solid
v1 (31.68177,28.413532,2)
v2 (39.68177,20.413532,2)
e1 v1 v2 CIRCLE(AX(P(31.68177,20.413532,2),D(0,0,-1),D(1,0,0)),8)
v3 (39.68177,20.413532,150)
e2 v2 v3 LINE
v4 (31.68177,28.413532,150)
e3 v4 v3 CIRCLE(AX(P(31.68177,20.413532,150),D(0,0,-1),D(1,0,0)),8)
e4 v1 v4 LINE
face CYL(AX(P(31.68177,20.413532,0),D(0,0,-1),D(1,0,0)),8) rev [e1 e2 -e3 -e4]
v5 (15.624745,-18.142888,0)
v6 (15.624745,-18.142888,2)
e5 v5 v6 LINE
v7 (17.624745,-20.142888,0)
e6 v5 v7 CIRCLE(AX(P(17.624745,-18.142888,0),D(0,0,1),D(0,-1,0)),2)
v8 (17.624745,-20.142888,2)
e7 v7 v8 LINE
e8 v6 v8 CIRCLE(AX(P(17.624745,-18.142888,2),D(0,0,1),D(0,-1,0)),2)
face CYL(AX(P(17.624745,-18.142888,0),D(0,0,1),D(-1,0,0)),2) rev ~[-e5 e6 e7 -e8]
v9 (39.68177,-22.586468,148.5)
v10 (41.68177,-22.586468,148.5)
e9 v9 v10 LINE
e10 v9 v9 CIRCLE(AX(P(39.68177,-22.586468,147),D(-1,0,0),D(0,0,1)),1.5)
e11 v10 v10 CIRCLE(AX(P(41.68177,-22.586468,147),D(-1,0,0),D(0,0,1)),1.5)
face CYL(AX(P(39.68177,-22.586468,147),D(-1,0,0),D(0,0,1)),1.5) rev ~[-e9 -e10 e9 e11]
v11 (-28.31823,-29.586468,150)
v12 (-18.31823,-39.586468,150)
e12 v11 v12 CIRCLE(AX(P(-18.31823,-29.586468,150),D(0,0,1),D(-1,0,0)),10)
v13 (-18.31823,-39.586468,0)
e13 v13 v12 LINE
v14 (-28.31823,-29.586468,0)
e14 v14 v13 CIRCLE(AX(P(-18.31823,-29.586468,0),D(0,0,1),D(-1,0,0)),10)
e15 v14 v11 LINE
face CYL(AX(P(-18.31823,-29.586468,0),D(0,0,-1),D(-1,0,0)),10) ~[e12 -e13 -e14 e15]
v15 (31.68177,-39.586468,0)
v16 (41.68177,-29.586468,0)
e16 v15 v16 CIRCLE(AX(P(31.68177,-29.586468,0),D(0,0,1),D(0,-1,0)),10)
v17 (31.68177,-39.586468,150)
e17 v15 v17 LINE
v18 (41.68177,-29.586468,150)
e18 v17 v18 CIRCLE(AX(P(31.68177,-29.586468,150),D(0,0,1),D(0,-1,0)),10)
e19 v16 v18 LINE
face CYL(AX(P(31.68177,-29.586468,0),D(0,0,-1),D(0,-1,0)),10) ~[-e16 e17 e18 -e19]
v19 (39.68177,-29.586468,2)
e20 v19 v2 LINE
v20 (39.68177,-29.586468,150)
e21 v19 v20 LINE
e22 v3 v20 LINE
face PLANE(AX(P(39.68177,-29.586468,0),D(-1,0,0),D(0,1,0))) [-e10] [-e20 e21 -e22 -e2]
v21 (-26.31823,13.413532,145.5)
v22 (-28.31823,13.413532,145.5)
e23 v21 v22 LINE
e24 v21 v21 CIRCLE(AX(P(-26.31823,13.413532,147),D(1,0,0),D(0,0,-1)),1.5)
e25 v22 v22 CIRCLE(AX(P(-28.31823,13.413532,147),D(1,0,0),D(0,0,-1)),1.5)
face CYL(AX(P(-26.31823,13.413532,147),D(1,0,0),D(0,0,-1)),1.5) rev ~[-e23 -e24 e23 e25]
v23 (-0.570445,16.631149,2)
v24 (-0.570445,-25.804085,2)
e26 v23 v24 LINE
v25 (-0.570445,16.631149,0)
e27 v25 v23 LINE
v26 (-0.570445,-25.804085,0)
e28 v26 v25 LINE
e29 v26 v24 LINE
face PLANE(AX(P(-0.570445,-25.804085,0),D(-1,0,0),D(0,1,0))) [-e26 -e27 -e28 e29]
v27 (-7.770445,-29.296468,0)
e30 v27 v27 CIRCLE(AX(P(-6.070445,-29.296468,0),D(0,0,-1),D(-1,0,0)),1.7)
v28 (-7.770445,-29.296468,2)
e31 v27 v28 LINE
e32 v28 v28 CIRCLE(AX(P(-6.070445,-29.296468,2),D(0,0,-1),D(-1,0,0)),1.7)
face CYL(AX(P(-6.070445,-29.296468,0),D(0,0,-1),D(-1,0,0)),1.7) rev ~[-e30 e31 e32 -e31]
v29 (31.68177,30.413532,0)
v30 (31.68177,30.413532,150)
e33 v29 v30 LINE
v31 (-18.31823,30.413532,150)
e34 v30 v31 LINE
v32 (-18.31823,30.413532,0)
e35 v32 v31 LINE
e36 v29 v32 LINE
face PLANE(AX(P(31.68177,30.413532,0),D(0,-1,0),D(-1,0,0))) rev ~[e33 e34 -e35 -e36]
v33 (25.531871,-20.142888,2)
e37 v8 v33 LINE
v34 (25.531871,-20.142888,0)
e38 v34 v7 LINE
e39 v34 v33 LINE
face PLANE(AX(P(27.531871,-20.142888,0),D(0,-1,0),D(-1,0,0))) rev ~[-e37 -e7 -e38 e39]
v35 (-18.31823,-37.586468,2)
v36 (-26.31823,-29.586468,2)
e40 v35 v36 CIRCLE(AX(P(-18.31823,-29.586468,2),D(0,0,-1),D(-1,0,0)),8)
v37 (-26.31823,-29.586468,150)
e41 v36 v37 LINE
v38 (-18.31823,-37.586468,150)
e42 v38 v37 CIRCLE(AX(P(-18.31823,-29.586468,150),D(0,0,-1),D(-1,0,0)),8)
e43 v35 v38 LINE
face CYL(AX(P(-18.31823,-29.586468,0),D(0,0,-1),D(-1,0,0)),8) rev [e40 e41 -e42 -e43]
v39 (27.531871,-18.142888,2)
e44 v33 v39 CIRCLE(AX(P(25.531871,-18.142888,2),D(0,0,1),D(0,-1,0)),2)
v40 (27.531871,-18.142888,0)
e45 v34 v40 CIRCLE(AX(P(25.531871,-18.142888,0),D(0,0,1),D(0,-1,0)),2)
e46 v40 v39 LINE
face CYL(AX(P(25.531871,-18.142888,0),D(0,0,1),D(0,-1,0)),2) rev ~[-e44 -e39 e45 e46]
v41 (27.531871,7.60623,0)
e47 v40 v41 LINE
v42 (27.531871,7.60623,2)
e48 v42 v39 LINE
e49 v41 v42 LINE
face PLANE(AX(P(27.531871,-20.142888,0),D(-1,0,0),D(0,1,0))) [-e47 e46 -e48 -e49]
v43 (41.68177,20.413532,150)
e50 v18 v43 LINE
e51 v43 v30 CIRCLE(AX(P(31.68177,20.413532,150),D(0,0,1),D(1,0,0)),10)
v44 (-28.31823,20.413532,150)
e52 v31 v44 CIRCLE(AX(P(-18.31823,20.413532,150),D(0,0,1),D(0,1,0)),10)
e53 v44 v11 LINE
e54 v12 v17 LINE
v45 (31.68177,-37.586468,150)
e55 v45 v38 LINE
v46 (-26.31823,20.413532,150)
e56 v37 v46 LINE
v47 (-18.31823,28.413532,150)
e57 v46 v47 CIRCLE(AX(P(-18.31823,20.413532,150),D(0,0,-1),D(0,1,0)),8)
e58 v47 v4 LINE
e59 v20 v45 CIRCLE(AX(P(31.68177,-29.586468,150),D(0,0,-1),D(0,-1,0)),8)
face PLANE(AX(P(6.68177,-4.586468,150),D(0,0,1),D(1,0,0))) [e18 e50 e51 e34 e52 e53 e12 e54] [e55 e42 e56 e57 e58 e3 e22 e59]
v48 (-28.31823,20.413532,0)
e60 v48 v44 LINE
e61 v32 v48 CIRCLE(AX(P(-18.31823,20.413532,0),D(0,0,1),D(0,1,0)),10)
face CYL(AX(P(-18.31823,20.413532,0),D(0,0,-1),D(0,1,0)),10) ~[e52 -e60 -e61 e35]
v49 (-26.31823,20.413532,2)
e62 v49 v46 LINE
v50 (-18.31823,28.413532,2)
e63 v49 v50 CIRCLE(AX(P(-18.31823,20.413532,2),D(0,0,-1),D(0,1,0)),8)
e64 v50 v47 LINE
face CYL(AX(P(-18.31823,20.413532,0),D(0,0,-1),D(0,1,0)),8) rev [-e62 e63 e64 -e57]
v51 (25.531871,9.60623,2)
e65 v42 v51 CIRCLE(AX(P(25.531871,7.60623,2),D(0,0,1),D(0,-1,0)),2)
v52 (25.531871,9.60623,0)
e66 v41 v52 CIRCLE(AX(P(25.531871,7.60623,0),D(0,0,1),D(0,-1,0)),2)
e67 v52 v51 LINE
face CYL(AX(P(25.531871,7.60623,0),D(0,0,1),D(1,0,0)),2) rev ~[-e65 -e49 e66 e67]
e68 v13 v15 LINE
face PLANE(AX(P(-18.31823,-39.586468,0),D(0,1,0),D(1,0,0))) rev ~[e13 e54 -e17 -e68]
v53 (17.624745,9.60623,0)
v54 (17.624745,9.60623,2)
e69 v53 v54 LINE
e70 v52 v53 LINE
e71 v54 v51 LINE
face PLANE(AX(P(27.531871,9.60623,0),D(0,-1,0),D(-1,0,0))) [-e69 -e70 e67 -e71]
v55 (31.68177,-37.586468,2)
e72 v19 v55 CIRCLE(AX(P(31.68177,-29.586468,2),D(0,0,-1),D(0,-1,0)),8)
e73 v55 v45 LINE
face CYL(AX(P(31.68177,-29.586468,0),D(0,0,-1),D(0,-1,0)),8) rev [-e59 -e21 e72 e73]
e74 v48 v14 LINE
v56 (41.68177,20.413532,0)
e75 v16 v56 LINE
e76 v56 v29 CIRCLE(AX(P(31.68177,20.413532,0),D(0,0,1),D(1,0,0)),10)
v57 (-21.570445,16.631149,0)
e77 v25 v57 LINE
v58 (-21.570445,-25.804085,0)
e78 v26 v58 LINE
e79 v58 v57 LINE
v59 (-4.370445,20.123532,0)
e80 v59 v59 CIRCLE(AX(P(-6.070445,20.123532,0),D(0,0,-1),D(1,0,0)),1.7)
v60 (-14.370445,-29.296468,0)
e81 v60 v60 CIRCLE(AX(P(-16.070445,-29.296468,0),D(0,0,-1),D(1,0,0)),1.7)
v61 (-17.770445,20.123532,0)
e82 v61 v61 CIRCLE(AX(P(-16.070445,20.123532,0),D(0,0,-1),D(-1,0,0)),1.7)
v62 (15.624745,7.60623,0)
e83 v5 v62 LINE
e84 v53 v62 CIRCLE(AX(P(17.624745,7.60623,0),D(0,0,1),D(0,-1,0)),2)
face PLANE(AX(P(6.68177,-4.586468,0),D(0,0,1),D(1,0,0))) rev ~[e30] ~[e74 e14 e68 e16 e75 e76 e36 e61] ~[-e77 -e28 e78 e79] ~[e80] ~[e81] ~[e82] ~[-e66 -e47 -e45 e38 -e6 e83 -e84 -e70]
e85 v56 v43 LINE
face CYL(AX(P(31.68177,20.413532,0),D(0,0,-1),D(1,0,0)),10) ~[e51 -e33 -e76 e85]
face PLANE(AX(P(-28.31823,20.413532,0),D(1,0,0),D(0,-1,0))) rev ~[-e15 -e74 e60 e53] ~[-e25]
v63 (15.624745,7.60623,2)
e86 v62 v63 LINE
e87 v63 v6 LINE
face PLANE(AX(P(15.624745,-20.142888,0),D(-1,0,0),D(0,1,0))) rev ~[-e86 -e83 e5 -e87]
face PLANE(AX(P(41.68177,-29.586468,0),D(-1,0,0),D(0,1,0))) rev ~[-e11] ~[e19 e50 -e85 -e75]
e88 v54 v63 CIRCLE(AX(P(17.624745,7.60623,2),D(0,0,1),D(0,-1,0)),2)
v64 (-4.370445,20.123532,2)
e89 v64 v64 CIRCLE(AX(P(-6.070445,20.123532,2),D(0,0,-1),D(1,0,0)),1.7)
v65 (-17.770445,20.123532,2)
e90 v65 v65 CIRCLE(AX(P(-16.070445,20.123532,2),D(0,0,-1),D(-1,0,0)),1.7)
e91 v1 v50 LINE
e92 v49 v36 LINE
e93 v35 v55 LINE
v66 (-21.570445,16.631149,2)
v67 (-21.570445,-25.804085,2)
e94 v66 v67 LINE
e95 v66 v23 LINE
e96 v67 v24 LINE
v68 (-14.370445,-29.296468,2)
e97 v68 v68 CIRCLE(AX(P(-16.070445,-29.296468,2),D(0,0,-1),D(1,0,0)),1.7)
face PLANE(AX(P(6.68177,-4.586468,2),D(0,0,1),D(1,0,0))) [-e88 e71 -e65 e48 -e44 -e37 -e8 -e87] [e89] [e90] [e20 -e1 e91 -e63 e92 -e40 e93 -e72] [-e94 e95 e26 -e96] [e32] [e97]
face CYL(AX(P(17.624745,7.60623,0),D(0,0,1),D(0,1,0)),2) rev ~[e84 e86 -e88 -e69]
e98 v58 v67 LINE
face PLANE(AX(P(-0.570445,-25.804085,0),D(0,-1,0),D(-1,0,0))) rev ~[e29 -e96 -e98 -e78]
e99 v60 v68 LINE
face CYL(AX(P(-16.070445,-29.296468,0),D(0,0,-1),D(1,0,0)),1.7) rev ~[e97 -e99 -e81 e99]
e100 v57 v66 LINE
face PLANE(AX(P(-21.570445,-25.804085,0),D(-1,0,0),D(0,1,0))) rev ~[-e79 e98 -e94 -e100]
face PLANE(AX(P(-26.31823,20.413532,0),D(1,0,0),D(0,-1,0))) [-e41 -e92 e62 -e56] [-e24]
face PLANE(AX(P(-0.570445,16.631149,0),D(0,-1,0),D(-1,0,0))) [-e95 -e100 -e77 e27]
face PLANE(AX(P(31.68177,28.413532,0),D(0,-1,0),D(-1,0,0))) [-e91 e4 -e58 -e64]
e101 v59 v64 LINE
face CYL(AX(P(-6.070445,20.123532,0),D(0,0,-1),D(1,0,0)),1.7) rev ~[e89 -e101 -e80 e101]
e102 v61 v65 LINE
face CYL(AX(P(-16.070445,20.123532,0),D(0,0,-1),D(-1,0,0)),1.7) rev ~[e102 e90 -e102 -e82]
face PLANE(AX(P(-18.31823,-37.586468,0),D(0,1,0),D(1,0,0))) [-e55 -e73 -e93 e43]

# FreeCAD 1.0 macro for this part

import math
import FreeCAD as App
import Part
import Sketcher
from FreeCAD import Vector


def edges_at(feature, points):
    """Names of the edges that pass closest to the given points."""
    edges = feature.Shape.Edges
    near = lambda p: min(range(len(edges)), key=lambda i: edges[i].distToShape(Part.Vertex(*p))[0])
    return sorted({f"Edge{near(p) + 1}" for p in points})


def faces_at(feature, points):
    """Names of the faces that lie closest to the given points."""
    faces = feature.Shape.Faces
    near = lambda p: min(range(len(faces)), key=lambda i: faces[i].distToShape(Part.Vertex(*p))[0])
    return sorted({f"Face{near(p) + 1}" for p in points})


def add_polygon(sketch, points):
    """Adds a closed chain of lines whose ends are joined by coincident constraints."""
    first, n = sketch.GeometryCount, len(points)
    for a, b in zip(points, points[1:] + points[:1]):
        sketch.addGeometry(Part.LineSegment(App.Vector(*a, 0), App.Vector(*b, 0)), False)
    for i in range(n):
        sketch.addConstraint(Sketcher.Constraint("Coincident", first + i, 2, first + (i + 1) % n, 1))

doc = App.newDocument("Part")
params = doc.addObject("Spreadsheet::Sheet", "Params")
for row, (alias, value) in enumerate([
    ("sketch1_radius", "10 mm"),
    ("sketch1_width", "50 mm"),
    ("pad1_length", "150 mm"),
    ("thickness_wall", "2 mm"),
    ("sketch2_diameter", "3.4 mm"),
    ("sketch2_width", "21 mm"),
    ("pocket1_length", "150 mm"),
    ("pocket2_length", "10 mm"),
    ("fillet_radius", "2 mm"),
    ("fillet2_radius", "2 mm"),
    ("fillet3_radius", "2 mm"),
    ("fillet4_radius", "2 mm"),
    ("sketch4_diameter", "3 mm"),
    ("pocket3_length", "7 mm"),
    ("sketch5_diameter", "3 mm"),
    ("pocket4_length", "7 mm"),
], start=1):
    params.set(f"A{row}", alias)
    params.set(f"B{row}", "=" + value)
    params.setAlias(f"B{row}", alias)

body = doc.addObject("PartDesign::Body", "Body")

sketch1 = body.newObject("Sketcher::SketchObject", "Sketch")
sketch1.AttachmentSupport = (doc.getObject("XY_Plane"), [""])
sketch1.MapMode = "FlatFace"
sketch1.addGeometry([
    Part.LineSegment(Vector(-28.31823, 20.413532, 0), Vector(-28.31823, -29.586468, 0)),
    Part.ArcOfCircle(Part.Circle(Vector(-18.31823, -29.586468, 0), Vector(0, 0, 1), 10), math.radians(-180), math.radians(-90)),
    Part.LineSegment(Vector(-18.31823, -39.586468, 0), Vector(31.68177, -39.586468, 0)),
    Part.ArcOfCircle(Part.Circle(Vector(31.68177, -29.586468, 0), Vector(0, 0, 1), 10), math.radians(-90), math.radians(0)),
    Part.LineSegment(Vector(41.68177, -29.586468, 0), Vector(41.68177, 20.413532, 0)),
    Part.ArcOfCircle(Part.Circle(Vector(31.68177, 20.413532, 0), Vector(0, 0, 1), 10), math.radians(0), math.radians(90)),
    Part.LineSegment(Vector(31.68177, 30.413532, 0), Vector(-18.31823, 30.413532, 0)),
    Part.ArcOfCircle(Part.Circle(Vector(-18.31823, 20.413532, 0), Vector(0, 0, 1), 10), math.radians(90), math.radians(180)),
], False)
sketch1.addConstraint([
    Sketcher.Constraint("Tangent", 0, 2, 1, 1),
    Sketcher.Constraint("Tangent", 1, 2, 2, 1),
    Sketcher.Constraint("Tangent", 2, 2, 3, 1),
    Sketcher.Constraint("Tangent", 3, 2, 4, 1),
    Sketcher.Constraint("Tangent", 4, 2, 5, 1),
    Sketcher.Constraint("Tangent", 5, 2, 6, 1),
    Sketcher.Constraint("Tangent", 6, 2, 7, 1),
    Sketcher.Constraint("Tangent", 7, 2, 0, 1),
    Sketcher.Constraint("Vertical", 0),
    Sketcher.Constraint("Horizontal", 2),
    Sketcher.Constraint("Vertical", 4),
    Sketcher.Constraint("Horizontal", 6),
    Sketcher.Constraint("Equal", 1, 3),
    Sketcher.Constraint("Equal", 3, 5),
    Sketcher.Constraint("Equal", 5, 7),
    Sketcher.Constraint("Equal", 6, 0),
    Sketcher.Constraint("Radius", 1, 10.0),
    Sketcher.Constraint("DistanceX", 2, 1, 2, 2, 50.0),
    Sketcher.Constraint("DistanceX", 1, 3, -1, 1, 18.31823),
    Sketcher.Constraint("DistanceY", 1, 3, -1, 1, 29.586468),
])
sketch1.setExpression("Constraints[16]", "Params.sketch1_radius")
sketch1.setExpression("Constraints[17]", "Params.sketch1_width")
pad1 = body.newObject("PartDesign::Pad", "Pad")
pad1.Profile = sketch1
pad1.setExpression("Length", "Params.pad1_length")
doc.recompute()

thickness = body.newObject("PartDesign::Thickness", "Thickness")
thickness.Base = (pad1, faces_at(pad1, [(6.682, -4.586, 150)]))
thickness.setExpression("Value", "Params.thickness_wall")
thickness.Reversed = True
thickness.Join = "Intersection"

sketch2 = body.newObject("Sketcher::SketchObject", "Sketch001")
sketch2.AttachmentSupport = (doc.getObject("XY_Plane"), [""])
sketch2.MapMode = "FlatFace"
sketch2.addGeometry(Part.Circle(Vector(-16.070445, 20.123532, 0), Vector(0, 0, 1), 1.7), False)
sketch2.addGeometry(Part.Circle(Vector(-6.070445, 20.123532, 0), Vector(0, 0, 1), 1.7), False)
sketch2.addGeometry(Part.Circle(Vector(-16.070445, -29.296468, 0), Vector(0, 0, 1), 1.7), False)
sketch2.addGeometry(Part.Circle(Vector(-6.070445, -29.296468, 0), Vector(0, 0, 1), 1.7), False)
add_polygon(sketch2, [(-0.570445, 16.631149), (-0.570445, -25.804085), (-21.570445, -25.804085), (-21.570445, 16.631149)])
sketch2.addConstraint([
    Sketcher.Constraint("Vertical", 4),
    Sketcher.Constraint("Horizontal", 5),
    Sketcher.Constraint("Vertical", 6),
    Sketcher.Constraint("Horizontal", 7),
    Sketcher.Constraint("Equal", 0, 1),
    Sketcher.Constraint("Equal", 1, 2),
    Sketcher.Constraint("Equal", 2, 3),
    Sketcher.Constraint("Horizontal", 0, 3, 1, 3),
    Sketcher.Constraint("Horizontal", 2, 3, 3, 3),
    Sketcher.Constraint("Vertical", 0, 3, 2, 3),
    Sketcher.Constraint("Vertical", 1, 3, 3, 3),
    Sketcher.Constraint("Diameter", 0, 3.4),
    Sketcher.Constraint("DistanceX", 5, 2, 5, 1, 21.0),
    Sketcher.Constraint("DistanceX", 0, 3, 1, 3, 10.0),
    Sketcher.Constraint("DistanceX", 3, 3, 4, 2, 5.5),
    Sketcher.Constraint("DistanceY", 2, 3, 0, 3, 49.42),
    Sketcher.Constraint("DistanceY", 4, 2, 4, 1, 42.435234),
    Sketcher.Constraint("DistanceY", -1, 1, 6, 2, 16.631149),
    Sketcher.Constraint("DistanceX", 0, 3, -1, 1, 16.070445),
    Sketcher.Constraint("DistanceY", -1, 1, 0, 3, 20.123532),
])
sketch2.setExpression("Constraints[15]", "Params.sketch2_diameter")
sketch2.setExpression("Constraints[16]", "Params.sketch2_width")
pocket1 = body.newObject("PartDesign::Pocket", "Pocket")
pocket1.Profile = sketch2
pocket1.setExpression("Length", "Params.pocket1_length")
pocket1.Reversed = True

sketch3 = body.newObject("Sketcher::SketchObject", "Sketch002")
sketch3.AttachmentSupport = (doc.getObject("XY_Plane"), [""])
sketch3.MapMode = "FlatFace"
add_polygon(sketch3, [(27.531871, 9.60623), (27.531871, -20.142888), (15.624745, -20.142888), (15.624745, 9.60623)])
sketch3.addConstraint([
    Sketcher.Constraint("Vertical", 0),
    Sketcher.Constraint("Horizontal", 1),
    Sketcher.Constraint("Vertical", 2),
    Sketcher.Constraint("Horizontal", 3),
    Sketcher.Constraint("DistanceY", 0, 2, 0, 1, 29.749119),
    Sketcher.Constraint("DistanceX", 1, 2, 1, 1, 11.907126),
    Sketcher.Constraint("DistanceX", -1, 1, 0, 2, 27.531871),
    Sketcher.Constraint("DistanceY", 0, 2, -1, 1, 20.142888),
])
pocket2 = body.newObject("PartDesign::Pocket", "Pocket001")
pocket2.Profile = sketch3
pocket2.setExpression("Length", "Params.pocket2_length")
pocket2.Reversed = True
doc.recompute()

fillet = body.newObject("PartDesign::Fillet", "Fillet")
fillet.Base = (pocket2, edges_at(pocket2, [(15.625, 9.606, 1)]))
fillet.setExpression("Radius", "Params.fillet_radius")
doc.recompute()

fillet2 = body.newObject("PartDesign::Fillet", "Fillet001")
fillet2.Base = (fillet, edges_at(fillet, [(15.625, -20.143, 1)]))
fillet2.setExpression("Radius", "Params.fillet2_radius")
doc.recompute()

fillet3 = body.newObject("PartDesign::Fillet", "Fillet002")
fillet3.Base = (fillet2, edges_at(fillet2, [(27.532, -20.143, 1)]))
fillet3.setExpression("Radius", "Params.fillet3_radius")
doc.recompute()

fillet4 = body.newObject("PartDesign::Fillet", "Fillet003")
fillet4.Base = (fillet3, edges_at(fillet3, [(27.532, 9.606, 1)]))
fillet4.setExpression("Radius", "Params.fillet4_radius")

sketch4 = body.newObject("Sketcher::SketchObject", "Sketch003")
sketch4.AttachmentSupport = (doc.getObject("YZ_Plane"), [""])
sketch4.MapMode = "FlatFace"
sketch4.AttachmentOffset = App.Placement(Vector(0, 0, 39.68177), App.Rotation())
sketch4.addGeometry(Part.Circle(Vector(-22.586468, 147, 0), Vector(0, 0, 1), 1.5), False)
sketch4.addConstraint([
    Sketcher.Constraint("Diameter", 0, 3.0),
    Sketcher.Constraint("DistanceY", -1, 1, 0, 3, 147.0),
    Sketcher.Constraint("DistanceX", 0, 3, -1, 1, 22.586468),
])
sketch4.setExpression("Constraints[0]", "Params.sketch4_diameter")
pocket3 = body.newObject("PartDesign::Pocket", "Pocket002")
pocket3.Profile = sketch4
pocket3.setExpression("Length", "Params.pocket3_length")
pocket3.Reversed = True

sketch5 = body.newObject("Sketcher::SketchObject", "Sketch004")
sketch5.AttachmentSupport = (doc.getObject("YZ_Plane"), [""])
sketch5.MapMode = "FlatFace"
sketch5.AttachmentOffset = App.Placement(Vector(0, 0, -26.31823), App.Rotation())
sketch5.addGeometry(Part.Circle(Vector(13.413532, 147, 0), Vector(0, 0, 1), 1.5), False)
sketch5.addConstraint([
    Sketcher.Constraint("Diameter", 0, 3.0),
    Sketcher.Constraint("DistanceY", -1, 1, 0, 3, 147.0),
    Sketcher.Constraint("DistanceX", -1, 1, 0, 3, 13.413532),
])
sketch5.setExpression("Constraints[0]", "Params.sketch5_diameter")
pocket4 = body.newObject("PartDesign::Pocket", "Pocket003")
pocket4.Profile = sketch5
pocket4.setExpression("Length", "Params.pocket4_length")

doc.recompute()
